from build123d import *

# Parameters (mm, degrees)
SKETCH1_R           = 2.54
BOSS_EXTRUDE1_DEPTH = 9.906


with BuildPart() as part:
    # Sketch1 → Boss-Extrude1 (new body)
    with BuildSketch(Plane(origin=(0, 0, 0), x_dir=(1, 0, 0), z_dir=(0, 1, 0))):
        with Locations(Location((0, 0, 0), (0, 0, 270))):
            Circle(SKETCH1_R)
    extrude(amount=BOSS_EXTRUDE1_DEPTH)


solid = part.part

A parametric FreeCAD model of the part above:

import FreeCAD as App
import Part
import Sketcher
from FreeCAD import Vector
Q = App.Units.Quantity

doc = App.newDocument("Part")
body = doc.addObject("PartDesign::Body", "Body")

sketch1 = body.newObject("Sketcher::SketchObject", "Sketch")
sketch1.AttachmentSupport = (doc.getObject("XZ_Plane"), [""])
sketch1.MapMode = "FlatFace"
sketch1.addGeometry(Part.Circle(Vector(0, 0, 0), Vector(0, 0, 1), 2.5), False)
sketch1.addConstraint(Sketcher.Constraint("Coincident", 0, 3, -1, 1))
sketch1.addConstraint(Sketcher.Constraint("Diameter", 0, Q("0.2 in")))
pad1 = body.newObject("PartDesign::Pad", "Pad")
pad1.Profile = sketch1
pad1.Length = Q("0.39 in")
pad1.Reversed = True

doc.recompute()
